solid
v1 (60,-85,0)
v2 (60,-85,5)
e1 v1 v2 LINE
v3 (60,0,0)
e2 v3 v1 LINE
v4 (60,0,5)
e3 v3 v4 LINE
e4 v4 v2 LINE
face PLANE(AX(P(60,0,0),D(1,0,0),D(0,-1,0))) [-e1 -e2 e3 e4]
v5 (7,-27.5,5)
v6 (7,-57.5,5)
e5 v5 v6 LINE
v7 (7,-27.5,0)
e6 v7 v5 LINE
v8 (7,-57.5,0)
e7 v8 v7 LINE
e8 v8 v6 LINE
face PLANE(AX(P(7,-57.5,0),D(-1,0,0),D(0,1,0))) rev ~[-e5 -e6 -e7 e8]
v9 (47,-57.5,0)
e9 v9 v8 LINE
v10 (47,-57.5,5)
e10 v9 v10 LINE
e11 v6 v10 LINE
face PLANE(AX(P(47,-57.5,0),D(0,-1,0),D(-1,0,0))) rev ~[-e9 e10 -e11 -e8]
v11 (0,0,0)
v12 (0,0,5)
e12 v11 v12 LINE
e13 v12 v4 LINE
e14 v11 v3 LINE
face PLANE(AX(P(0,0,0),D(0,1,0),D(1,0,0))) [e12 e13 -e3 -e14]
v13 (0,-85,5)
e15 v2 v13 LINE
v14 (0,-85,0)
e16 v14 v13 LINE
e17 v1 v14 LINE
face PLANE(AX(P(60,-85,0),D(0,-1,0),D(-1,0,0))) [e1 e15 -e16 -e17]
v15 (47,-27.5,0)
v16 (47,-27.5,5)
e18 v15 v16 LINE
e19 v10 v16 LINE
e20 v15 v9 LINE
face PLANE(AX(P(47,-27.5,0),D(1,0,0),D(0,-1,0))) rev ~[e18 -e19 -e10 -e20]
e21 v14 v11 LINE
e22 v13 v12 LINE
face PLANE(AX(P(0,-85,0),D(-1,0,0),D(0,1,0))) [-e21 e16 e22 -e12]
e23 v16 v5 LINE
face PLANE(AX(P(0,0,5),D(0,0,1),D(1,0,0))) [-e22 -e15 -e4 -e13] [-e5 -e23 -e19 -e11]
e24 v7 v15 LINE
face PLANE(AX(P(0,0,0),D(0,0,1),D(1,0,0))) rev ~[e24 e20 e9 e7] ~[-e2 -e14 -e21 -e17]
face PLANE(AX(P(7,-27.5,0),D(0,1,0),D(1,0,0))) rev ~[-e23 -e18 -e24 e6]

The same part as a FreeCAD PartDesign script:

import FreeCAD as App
import Part
import Sketcher
Q = App.Units.Quantity


def add_polygon(sketch, points):
    """Adds a closed chain of lines whose ends are joined by coincident constraints."""
    first, n = sketch.GeometryCount, len(points)
    for a, b in zip(points, points[1:] + points[:1]):
        sketch.addGeometry(Part.LineSegment(App.Vector(*a, 0), App.Vector(*b, 0)), False)
    for i in range(n):
        sketch.addConstraint(Sketcher.Constraint("Coincident", first + i, 2, first + (i + 1) % n, 1))

doc = App.newDocument("Part")
params = doc.addObject("Spreadsheet::Sheet", "Params")
for row, (alias, value) in enumerate([
    ("sketch1_width", "60 mm"),
    ("sketch1_height", "85 mm"),
    ("pad1_length", "5 mm"),
    ("sketch2_width", "40 mm"),
    ("sketch2_height", "30 mm"),
    ("pocket1_length", "100 mm"),
], start=1):
    params.set(f"A{row}", alias)
    params.set(f"B{row}", "=" + value)
    params.setAlias(f"B{row}", alias)

body = doc.addObject("PartDesign::Body", "Body")

# Sketch on XY plane
sketch1 = body.newObject("Sketcher::SketchObject", "Sketch")
sketch1.AttachmentSupport = (doc.getObject("XY_Plane"), [""])
sketch1.MapMode = "FlatFace"
add_polygon(sketch1, [(60, 0), (0, 0), (0, -85), (60, -85)])  # lines 0-3
sketch1.addConstraint([
    Sketcher.Constraint("Horizontal", 0),
    Sketcher.Constraint("Vertical", 1),
    Sketcher.Constraint("Horizontal", 2),
    Sketcher.Constraint("Vertical", 3),
    Sketcher.Constraint("Coincident", 0, 2, -1, 1),
    Sketcher.Constraint("DistanceX", 0, 2, 0, 1, Q("60 mm")),
    Sketcher.Constraint("DistanceY", 1, 2, 1, 1, Q("85 mm")),
])
sketch1.setExpression("Constraints[9]", "Params.sketch1_width")
sketch1.setExpression("Constraints[10]", "Params.sketch1_height")
pad1 = body.newObject("PartDesign::Pad", "Pad")
pad1.Profile = sketch1
pad1.setExpression("Length", "Params.pad1_length")

# Sketch on XY plane
sketch2 = body.newObject("Sketcher::SketchObject", "Sketch001")
sketch2.AttachmentSupport = (doc.getObject("XY_Plane"), [""])
sketch2.MapMode = "FlatFace"
add_polygon(sketch2, [(47, -28), (7, -28), (7, -58), (47, -58)])  # lines 0-3
sketch2.addConstraint([
    Sketcher.Constraint("Horizontal", 0),
    Sketcher.Constraint("Vertical", 1),
    Sketcher.Constraint("Horizontal", 2),
    Sketcher.Constraint("Vertical", 3),
    Sketcher.Constraint("DistanceX", 0, 2, 0, 1, Q("40 mm")),
    Sketcher.Constraint("DistanceY", 1, 2, 1, 1, Q("30 mm")),
    Sketcher.Constraint("DistanceX", -1, 1, 0, 2, Q("7 mm")),
    Sketcher.Constraint("DistanceY", 0, 2, -1, 1, Q("27.5 mm")),
])
sketch2.setExpression("Constraints[8]", "Params.sketch2_width")
sketch2.setExpression("Constraints[9]", "Params.sketch2_height")
pocket1 = body.newObject("PartDesign::Pocket", "Pocket")
pocket1.Profile = sketch2
pocket1.setExpression("Length", "Params.pocket1_length")
pocket1.Reversed = True

doc.recompute()
